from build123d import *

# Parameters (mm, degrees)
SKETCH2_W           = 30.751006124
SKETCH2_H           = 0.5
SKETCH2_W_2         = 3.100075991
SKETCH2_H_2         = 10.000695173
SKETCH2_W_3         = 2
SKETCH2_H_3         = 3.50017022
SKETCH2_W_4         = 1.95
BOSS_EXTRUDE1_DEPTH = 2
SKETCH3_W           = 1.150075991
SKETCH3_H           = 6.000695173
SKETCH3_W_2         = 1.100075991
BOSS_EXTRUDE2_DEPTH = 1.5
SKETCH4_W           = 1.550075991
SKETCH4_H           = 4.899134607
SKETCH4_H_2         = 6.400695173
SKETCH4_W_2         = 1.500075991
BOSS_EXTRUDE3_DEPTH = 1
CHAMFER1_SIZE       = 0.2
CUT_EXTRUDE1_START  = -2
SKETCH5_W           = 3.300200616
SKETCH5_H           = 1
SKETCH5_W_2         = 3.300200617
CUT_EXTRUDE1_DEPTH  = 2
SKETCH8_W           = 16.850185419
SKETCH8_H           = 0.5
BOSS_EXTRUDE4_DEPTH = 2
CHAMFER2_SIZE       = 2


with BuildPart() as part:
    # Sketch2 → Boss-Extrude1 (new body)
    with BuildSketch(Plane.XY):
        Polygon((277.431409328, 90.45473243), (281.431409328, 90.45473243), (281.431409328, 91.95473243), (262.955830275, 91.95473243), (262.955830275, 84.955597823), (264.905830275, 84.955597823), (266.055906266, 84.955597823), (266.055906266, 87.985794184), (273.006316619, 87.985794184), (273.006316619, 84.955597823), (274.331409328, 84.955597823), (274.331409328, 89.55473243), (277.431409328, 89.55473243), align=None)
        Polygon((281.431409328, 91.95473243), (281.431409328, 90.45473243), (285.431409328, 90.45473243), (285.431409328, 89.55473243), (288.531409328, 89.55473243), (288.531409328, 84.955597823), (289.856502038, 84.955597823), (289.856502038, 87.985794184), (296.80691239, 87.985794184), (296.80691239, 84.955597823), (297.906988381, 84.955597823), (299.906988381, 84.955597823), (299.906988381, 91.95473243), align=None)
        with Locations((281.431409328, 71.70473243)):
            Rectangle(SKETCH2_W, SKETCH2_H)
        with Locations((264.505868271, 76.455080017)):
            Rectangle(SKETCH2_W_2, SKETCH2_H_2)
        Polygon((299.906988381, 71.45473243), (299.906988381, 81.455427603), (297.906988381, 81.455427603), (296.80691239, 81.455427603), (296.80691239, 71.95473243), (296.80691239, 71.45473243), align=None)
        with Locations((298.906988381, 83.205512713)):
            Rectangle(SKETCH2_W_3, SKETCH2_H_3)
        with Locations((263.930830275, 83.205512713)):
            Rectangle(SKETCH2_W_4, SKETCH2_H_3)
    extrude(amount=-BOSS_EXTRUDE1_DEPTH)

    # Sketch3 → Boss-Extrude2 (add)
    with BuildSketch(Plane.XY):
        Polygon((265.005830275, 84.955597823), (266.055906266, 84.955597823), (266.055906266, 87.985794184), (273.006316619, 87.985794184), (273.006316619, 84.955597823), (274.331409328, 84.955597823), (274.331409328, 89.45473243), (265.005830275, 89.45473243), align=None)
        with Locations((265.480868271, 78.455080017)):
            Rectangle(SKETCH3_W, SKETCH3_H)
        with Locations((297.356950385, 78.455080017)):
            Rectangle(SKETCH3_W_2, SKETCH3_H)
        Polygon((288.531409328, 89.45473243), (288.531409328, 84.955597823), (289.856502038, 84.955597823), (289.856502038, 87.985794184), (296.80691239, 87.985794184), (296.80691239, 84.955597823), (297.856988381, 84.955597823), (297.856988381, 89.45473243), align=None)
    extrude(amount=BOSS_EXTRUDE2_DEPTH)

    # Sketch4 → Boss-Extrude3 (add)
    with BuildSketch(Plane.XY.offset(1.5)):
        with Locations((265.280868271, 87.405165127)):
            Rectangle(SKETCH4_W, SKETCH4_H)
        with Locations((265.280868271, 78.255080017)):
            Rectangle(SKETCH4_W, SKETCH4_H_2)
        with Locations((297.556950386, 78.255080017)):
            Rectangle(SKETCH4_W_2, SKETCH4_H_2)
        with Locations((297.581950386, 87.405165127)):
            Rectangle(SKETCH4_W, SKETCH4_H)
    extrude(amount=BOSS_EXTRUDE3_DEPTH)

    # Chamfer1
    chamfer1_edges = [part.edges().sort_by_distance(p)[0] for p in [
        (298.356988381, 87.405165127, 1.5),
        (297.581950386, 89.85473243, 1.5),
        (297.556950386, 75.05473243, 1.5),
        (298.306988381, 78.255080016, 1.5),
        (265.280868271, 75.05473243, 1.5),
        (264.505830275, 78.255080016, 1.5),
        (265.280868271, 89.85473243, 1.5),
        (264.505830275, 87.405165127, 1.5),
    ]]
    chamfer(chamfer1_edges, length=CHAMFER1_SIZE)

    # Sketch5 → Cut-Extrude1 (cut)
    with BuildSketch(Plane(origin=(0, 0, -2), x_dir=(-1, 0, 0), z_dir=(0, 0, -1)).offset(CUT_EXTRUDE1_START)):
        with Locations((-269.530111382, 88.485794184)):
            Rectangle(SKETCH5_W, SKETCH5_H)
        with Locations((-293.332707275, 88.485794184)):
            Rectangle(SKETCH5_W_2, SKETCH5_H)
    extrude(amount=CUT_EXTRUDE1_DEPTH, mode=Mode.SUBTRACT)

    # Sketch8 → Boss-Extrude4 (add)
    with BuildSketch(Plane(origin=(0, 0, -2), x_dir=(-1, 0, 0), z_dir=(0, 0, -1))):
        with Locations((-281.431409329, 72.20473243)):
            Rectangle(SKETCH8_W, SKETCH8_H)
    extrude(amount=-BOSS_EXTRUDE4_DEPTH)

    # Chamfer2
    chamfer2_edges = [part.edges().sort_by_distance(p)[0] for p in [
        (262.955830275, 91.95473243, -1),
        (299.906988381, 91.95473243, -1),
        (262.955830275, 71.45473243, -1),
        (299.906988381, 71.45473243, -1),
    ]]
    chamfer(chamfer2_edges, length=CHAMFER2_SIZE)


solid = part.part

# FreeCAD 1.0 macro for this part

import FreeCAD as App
import Part
import Sketcher
Q = App.Units.Quantity


def edges_at(feature, points):
    """Names of the edges that pass closest to the given points."""
    edges = feature.Shape.Edges
    near = lambda p: min(range(len(edges)), key=lambda i: edges[i].distToShape(Part.Vertex(*p))[0])
    return sorted({f"Edge{near(p) + 1}" for p in points})


def add_polygon(sketch, points):
    """Adds a closed chain of lines whose ends are joined by coincident constraints."""
    first, n = sketch.GeometryCount, len(points)
    for a, b in zip(points, points[1:] + points[:1]):
        sketch.addGeometry(Part.LineSegment(App.Vector(*a, 0), App.Vector(*b, 0)), False)
    for i in range(n):
        sketch.addConstraint(Sketcher.Constraint("Coincident", first + i, 2, first + (i + 1) % n, 1))

doc = App.newDocument("Part")
body = doc.addObject("PartDesign::Body", "Body")

# Sketch on XY plane
sketch1 = body.newObject("Sketcher::SketchObject", "Sketch")
sketch1.AttachmentSupport = (doc.getObject("XY_Plane"), [""])
sketch1.MapMode = "FlatFace"
add_polygon(sketch1, [(262.95583, 81.455428), (262.95583, 71.454732), (266.055906, 71.454732), (299.906988, 71.454732), (299.906988, 91.954732), (262.95583, 91.954732)])  # lines 0-5
add_polygon(sketch1, [(277.431409, 90.454732), (285.431409, 90.454732), (285.431409, 89.554732), (288.531409, 89.554732), (288.531409, 84.955598), (289.856502, 84.955598), (289.856502, 87.985794), (296.806912, 87.985794), (296.806912, 84.955598), (297.906988, 84.955598), (297.906988, 81.455428), (296.806912, 81.455428), (296.806912, 71.954732), (266.055906, 71.954732), (266.055906, 81.455428), (264.90583, 81.455428), (264.90583, 84.955598), (266.055906, 84.955598), (266.055906, 87.985794), (273.006317, 87.985794), (273.006317, 84.955598), (274.331409, 84.955598), (274.331409, 89.554732), (277.431409, 89.554732)])  # lines 6-29
sketch1.addConstraint([
    Sketcher.Constraint("Vertical", 0),
    Sketcher.Constraint("Horizontal", 1),
    Sketcher.Constraint("Horizontal", 2),
    Sketcher.Constraint("Vertical", 3),
    Sketcher.Constraint("Horizontal", 4),
    Sketcher.Constraint("Vertical", 5),
    Sketcher.Constraint("Horizontal", 6),
    Sketcher.Constraint("Vertical", 7),
    Sketcher.Constraint("Horizontal", 8),
    Sketcher.Constraint("Vertical", 9),
    Sketcher.Constraint("Horizontal", 10),
    Sketcher.Constraint("Vertical", 11),
    Sketcher.Constraint("Horizontal", 12),
    Sketcher.Constraint("Vertical", 13),
    Sketcher.Constraint("Horizontal", 14),
    Sketcher.Constraint("Vertical", 15),
    Sketcher.Constraint("Horizontal", 16),
    Sketcher.Constraint("Vertical", 17),
    Sketcher.Constraint("Horizontal", 18),
    Sketcher.Constraint("Vertical", 19),
    Sketcher.Constraint("Horizontal", 20),
    Sketcher.Constraint("Vertical", 21),
    Sketcher.Constraint("Horizontal", 22),
    Sketcher.Constraint("Vertical", 23),
    Sketcher.Constraint("Horizontal", 24),
    Sketcher.Constraint("Vertical", 25),
    Sketcher.Constraint("Horizontal", 26),
    Sketcher.Constraint("Vertical", 27),
    Sketcher.Constraint("Horizontal", 28),
    Sketcher.Constraint("Vertical", 29),
    Sketcher.Constraint("Horizontal", 10, 2, 13, 2),
    Sketcher.Constraint("Horizontal", 5, 2, 15, 2),
    Sketcher.Constraint("Horizontal", 16, 2, 19, 2),
    Sketcher.Constraint("Horizontal", 14, 2, 21, 2),
    Sketcher.Constraint("Horizontal", 12, 2, 23, 2),
    Sketcher.Constraint("Horizontal", 22, 2, 25, 2),
    Sketcher.Constraint("Horizontal", 8, 2, 27, 2),
    Sketcher.Constraint("Vertical", 13, 2, 16, 2),
    Sketcher.Constraint("Vertical", 1, 2, 18, 2),
    Sketcher.Constraint("Vertical", 19, 2, 22, 2),
    Sketcher.Constraint("Equal", 12, 24),
    Sketcher.Constraint("Equal", 10, 26),
    Sketcher.Constraint("Equal", 8, 28),
    Sketcher.Constraint("DistanceX", 6, 1, 6, 2, Q("8 mm")),
    Sketcher.Constraint("DistanceX", 8, 1, 8, 2, Q("3.1 mm")),
    Sketcher.Constraint("DistanceY", 3, 1, 3, 2, Q("20.5 mm")),
    Sketcher.Constraint("DistanceY", 7, 2, 7, 1, Q("0.9 mm")),
    Sketcher.Constraint("DistanceY", 2, 2, 6, 2, Q("19 mm")),
    Sketcher.Constraint("DistanceX", 14, 2, 3, 2, Q("2 mm")),
    Sketcher.Constraint("DistanceY", 18, 2, 4, 2, Q("20 mm")),
    Sketcher.Constraint("DistanceX", 5, 2, 20, 2, Q("1.95 mm")),
    Sketcher.Constraint("DistanceX", 4, 2, 4, 1, Q("36.951158 mm")),
    Sketcher.Constraint("DistanceX", 12, 1, 12, 2, Q("6.95041 mm")),
    Sketcher.Constraint("DistanceY", 15, 2, 15, 1, Q("3.50017 mm")),
    Sketcher.Constraint("DistanceX", 1, 1, 1, 2, Q("3.100076 mm")),
    Sketcher.Constraint("DistanceX", 10, 1, 10, 2, Q("1.325093 mm")),
    Sketcher.Constraint("DistanceY", 0, 2, 0, 1, Q("10.000695 mm")),
    Sketcher.Constraint("DistanceY", 11, 1, 11, 2, Q("3.030196 mm")),
    Sketcher.Constraint("DistanceX", -1, 1, 0, 2, Q("262.95583 mm")),
    Sketcher.Constraint("DistanceY", -1, 1, 0, 2, Q("71.454732 mm")),
])
pad1 = body.newObject("PartDesign::Pad", "Pad")
pad1.Profile = sketch1
pad1.Length = 2
pad1.Reversed = True

# Sketch on XY plane
sketch2 = body.newObject("Sketcher::SketchObject", "Sketch001")
sketch2.AttachmentSupport = (doc.getObject("XY_Plane"), [""])
sketch2.MapMode = "FlatFace"
add_polygon(sketch2, [(265.00583, 84.955598), (266.055906, 84.955598), (266.055906, 87.985794), (273.006317, 87.985794), (273.006317, 84.955598), (274.331409, 84.955598), (274.331409, 89.454732), (265.00583, 89.454732)])  # lines 0-7
add_polygon(sketch2, [(264.90583, 81.455428), (264.90583, 75.454732), (266.055906, 75.454732), (266.055906, 81.455428)])  # lines 8-11
add_polygon(sketch2, [(296.806912, 81.455428), (296.806912, 75.454732), (297.906988, 75.454732), (297.906988, 81.455428)])  # lines 12-15
add_polygon(sketch2, [(288.531409, 89.454732), (288.531409, 84.955598), (289.856502, 84.955598), (289.856502, 87.985794), (296.806912, 87.985794), (296.806912, 84.955598), (297.856988, 84.955598), (297.856988, 89.454732)])  # lines 16-23
sketch2.addConstraint([
    Sketcher.Constraint("Horizontal", 0),
    Sketcher.Constraint("Vertical", 1),
    Sketcher.Constraint("Horizontal", 2),
    Sketcher.Constraint("Vertical", 3),
    Sketcher.Constraint("Horizontal", 4),
    Sketcher.Constraint("Vertical", 5),
    Sketcher.Constraint("Horizontal", 6),
    Sketcher.Constraint("Vertical", 7),
    Sketcher.Constraint("Vertical", 8),
    Sketcher.Constraint("Horizontal", 9),
    Sketcher.Constraint("Vertical", 10),
    Sketcher.Constraint("Horizontal", 11),
    Sketcher.Constraint("Vertical", 12),
    Sketcher.Constraint("Horizontal", 13),
    Sketcher.Constraint("Vertical", 14),
    Sketcher.Constraint("Horizontal", 15),
    Sketcher.Constraint("Vertical", 16),
    Sketcher.Constraint("Horizontal", 17),
    Sketcher.Constraint("Vertical", 18),
    Sketcher.Constraint("Horizontal", 19),
    Sketcher.Constraint("Vertical", 20),
    Sketcher.Constraint("Horizontal", 21),
    Sketcher.Constraint("Vertical", 22),
    Sketcher.Constraint("Horizontal", 23),
    Sketcher.Constraint("Horizontal", 0, 2, 3, 2),
    Sketcher.Constraint("Horizontal", 9, 2, 12, 2),
    Sketcher.Constraint("Horizontal", 11, 2, 14, 2),
    Sketcher.Constraint("Horizontal", 7, 2, 16, 2),
    Sketcher.Constraint("Horizontal", 2, 2, 18, 2),
    Sketcher.Constraint("Horizontal", 17, 2, 20, 2),
    Sketcher.Constraint("Horizontal", 6, 2, 22, 2),
    Sketcher.Constraint("Vertical", 1, 2, 9, 2),
    Sketcher.Constraint("Vertical", 15, 2, 19, 2),
    Sketcher.Constraint("Equal", 4, 17),
    Sketcher.Constraint("Equal", 2, 19),
    Sketcher.Constraint("Equal", 0, 21),
    Sketcher.Constraint("DistanceY", 12, 2, 5, 2, Q("14 mm")),
    Sketcher.Constraint("DistanceX", 8, 2, 7, 2, Q("0.1 mm")),
    Sketcher.Constraint("DistanceX", 4, 2, 16, 2, Q("14.2 mm")),
    Sketcher.Constraint("DistanceX", 21, 2, 14, 2, Q("0.05 mm")),
    Sketcher.Constraint("DistanceX", 2, 1, 2, 2, Q("6.95041 mm")),
    Sketcher.Constraint("DistanceX", 6, 2, 6, 1, Q("9.325579 mm")),
    Sketcher.Constraint("DistanceX", 0, 1, 0, 2, Q("1.050076 mm")),
    Sketcher.Constraint("DistanceY", 1, 1, 1, 2, Q("3.030196 mm")),
    Sketcher.Constraint("DistanceY", 5, 1, 5, 2, Q("4.499135 mm")),
    Sketcher.Constraint("DistanceY", 8, 2, 8, 1, Q("6.000695 mm")),
    Sketcher.Constraint("DistanceX", -1, 1, 4, 2, Q("274.331409 mm")),
    Sketcher.Constraint("DistanceY", -1, 1, 0, 2, Q("84.955598 mm")),
])
pad2 = body.newObject("PartDesign::Pad", "Pad001")
pad2.Profile = sketch2
pad2.Length = 1.5

# Sketch on XY plane
sketch3 = body.newObject("Sketcher::SketchObject", "Sketch002")
sketch3.AttachmentSupport = (doc.getObject("XY_Plane"), [""])
sketch3.MapMode = "FlatFace"
sketch3.AttachmentOffset = App.Placement(App.Vector(0, 0, 1.5), App.Rotation())
add_polygon(sketch3, [(264.50583, 89.854732), (264.50583, 84.955598), (266.055906, 84.955598), (266.055906, 89.854732)])  # lines 0-3
add_polygon(sketch3, [(264.50583, 81.455428), (264.50583, 75.054732), (266.055906, 75.054732), (266.055906, 81.455428)])  # lines 4-7
add_polygon(sketch3, [(296.806912, 81.455428), (296.806912, 75.054732), (298.306988, 75.054732), (298.306988, 81.455428)])  # lines 8-11
add_polygon(sketch3, [(296.806912, 89.854732), (296.806912, 84.955598), (298.356988, 84.955598), (298.356988, 89.854732)])  # lines 12-15
sketch3.addConstraint([
    Sketcher.Constraint("Vertical", 0),
    Sketcher.Constraint("Horizontal", 1),
    Sketcher.Constraint("Vertical", 2),
    Sketcher.Constraint("Horizontal", 3),
    Sketcher.Constraint("Vertical", 4),
    Sketcher.Constraint("Horizontal", 5),
    Sketcher.Constraint("Vertical", 6),
    Sketcher.Constraint("Horizontal", 7),
    Sketcher.Constraint("Vertical", 8),
    Sketcher.Constraint("Horizontal", 9),
    Sketcher.Constraint("Vertical", 10),
    Sketcher.Constraint("Horizontal", 11),
    Sketcher.Constraint("Vertical", 12),
    Sketcher.Constraint("Horizontal", 13),
    Sketcher.Constraint("Vertical", 14),
    Sketcher.Constraint("Horizontal", 15),
    Sketcher.Constraint("Horizontal", 5, 2, 8, 2),
    Sketcher.Constraint("Horizontal", 7, 2, 10, 2),
    Sketcher.Constraint("Horizontal", 1, 2, 12, 2),
    Sketcher.Constraint("Horizontal", 3, 2, 14, 2),
    Sketcher.Constraint("Vertical", 3, 2, 4, 2),
    Sketcher.Constraint("Vertical", 2, 2, 5, 2),
    Sketcher.Constraint("Vertical", 11, 2, 12, 2),
    Sketcher.Constraint("Equal", 7, 13),
    Sketcher.Constraint("DistanceY", 4, 2, 3, 2, Q("14.8 mm")),
    Sketcher.Constraint("DistanceX", 10, 2, 13, 2, Q("0.05 mm")),
    Sketcher.Constraint("DistanceX", 1, 1, 1, 2, Q("1.550076 mm")),
    Sketcher.Constraint("DistanceY", 0, 2, 0, 1, Q("4.899135 mm")),
    Sketcher.Constraint("DistanceY", 4, 2, 4, 1, Q("6.400695 mm")),
    Sketcher.Constraint("DistanceX", -1, 1, 0, 2, Q("264.50583 mm")),
    Sketcher.Constraint("DistanceX", -1, 1, 9, 2, Q("298.306988 mm")),
    Sketcher.Constraint("DistanceY", -1, 1, 0, 2, Q("84.955598 mm")),
])
pad3 = body.newObject("PartDesign::Pad", "Pad002")
pad3.Profile = sketch3
pad3.Length = 1
doc.recompute()

chamfer = body.newObject("PartDesign::Chamfer", "Chamfer")
chamfer.Base = (pad3, edges_at(pad3, [
    (298.357, 87.405, 1.5),
    (297.582, 89.855, 1.5),
    (297.557, 75.055, 1.5),
    (298.307, 78.255, 1.5),
    (265.281, 75.055, 1.5),
    (264.506, 78.255, 1.5),
    (265.281, 89.855, 1.5),
    (264.506, 87.405, 1.5),
]))
chamfer.Size = 0.2

# Sketch on XY plane
sketch4 = body.newObject("Sketcher::SketchObject", "Sketch003")
sketch4.AttachmentSupport = (doc.getObject("XY_Plane"), [""])
sketch4.MapMode = "FlatFace"
add_polygon(sketch4, [(271.180212, 88.985794), (271.180212, 87.985794), (267.880011, 87.985794), (267.880011, 88.985794)])  # lines 0-3
add_polygon(sketch4, [(294.982808, 88.985794), (294.982808, 87.985794), (291.682607, 87.985794), (291.682607, 88.985794)])  # lines 4-7
sketch4.addConstraint([
    Sketcher.Constraint("Vertical", 0),
    Sketcher.Constraint("Horizontal", 1),
    Sketcher.Constraint("Vertical", 2),
    Sketcher.Constraint("Horizontal", 3),
    Sketcher.Constraint("Vertical", 4),
    Sketcher.Constraint("Horizontal", 5),
    Sketcher.Constraint("Vertical", 6),
    Sketcher.Constraint("Horizontal", 7),
    Sketcher.Constraint("Horizontal", 1, 2, 4, 2),
    Sketcher.Constraint("Horizontal", 3, 2, 6, 2),
    Sketcher.Constraint("Equal", 3, 5),
    Sketcher.Constraint("DistanceY", 0, 2, 0, 1, Q("1 mm")),
    Sketcher.Constraint("DistanceX", 1, 2, 1, 1, Q("3.300201 mm")),
    Sketcher.Constraint("DistanceX", -1, 1, 0, 2, Q("271.180212 mm")),
    Sketcher.Constraint("DistanceY", -1, 1, 0, 2, Q("87.985794 mm")),
    Sketcher.Constraint("DistanceX", -1, 1, 4, 2, Q("294.982808 mm")),
])
pocket1 = body.newObject("PartDesign::Pocket", "Pocket")
pocket1.Profile = sketch4
pocket1.Length = 2

# Sketch on XY plane
sketch5 = body.newObject("Sketcher::SketchObject", "Sketch004")
sketch5.AttachmentSupport = (doc.getObject("XY_Plane"), [""])
sketch5.MapMode = "FlatFace"
sketch5.AttachmentOffset = App.Placement(App.Vector(0, 0, -2), App.Rotation())
add_polygon(sketch5, [(289.856502, 72.454732), (289.856502, 71.954732), (273.006317, 71.954732), (273.006317, 72.454732)])  # lines 0-3
sketch5.addConstraint([
    Sketcher.Constraint("Vertical", 0),
    Sketcher.Constraint("Horizontal", 1),
    Sketcher.Constraint("Vertical", 2),
    Sketcher.Constraint("Horizontal", 3),
    Sketcher.Constraint("DistanceY", 0, 2, 0, 1, Q("0.5 mm")),
    Sketcher.Constraint("DistanceX", 1, 2, 1, 1, Q("16.850185 mm")),
    Sketcher.Constraint("DistanceX", -1, 1, 0, 2, Q("289.856502 mm")),
    Sketcher.Constraint("DistanceY", -1, 1, 0, 2, Q("71.954732 mm")),
])
pad4 = body.newObject("PartDesign::Pad", "Pad003")
pad4.Profile = sketch5
pad4.Length = 2
doc.recompute()

chamfer2 = body.newObject("PartDesign::Chamfer", "Chamfer001")
chamfer2.Base = (pad4, edges_at(pad4, [
    (262.956, 91.955, -1),
    (299.907, 91.955, -1),
    (262.956, 71.455, -1),
    (299.907, 71.455, -1),
]))
chamfer2.Size = 2

doc.recompute()
